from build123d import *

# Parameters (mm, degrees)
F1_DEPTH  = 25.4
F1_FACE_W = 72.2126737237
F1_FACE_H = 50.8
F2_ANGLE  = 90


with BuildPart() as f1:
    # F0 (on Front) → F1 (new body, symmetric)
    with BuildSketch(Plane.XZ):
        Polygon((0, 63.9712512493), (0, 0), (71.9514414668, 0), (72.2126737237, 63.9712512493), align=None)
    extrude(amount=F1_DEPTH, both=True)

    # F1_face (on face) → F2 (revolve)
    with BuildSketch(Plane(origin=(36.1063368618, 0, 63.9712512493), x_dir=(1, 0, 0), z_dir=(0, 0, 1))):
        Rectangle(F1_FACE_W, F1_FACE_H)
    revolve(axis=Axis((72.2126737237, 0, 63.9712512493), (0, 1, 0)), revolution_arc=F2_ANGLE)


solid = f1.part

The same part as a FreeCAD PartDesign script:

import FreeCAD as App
import Part
import Sketcher
Q = App.Units.Quantity

doc = App.newDocument("Part")
params = doc.addObject("Spreadsheet::Sheet", "Params")
for row, (alias, value) in enumerate([
    ("pad1_length", "2 in"),
    ("sketch2_height", "2 in"),
    ("revolution_angle", "90 deg"),
], start=1):
    params.set(f"A{row}", alias)
    params.set(f"B{row}", "=" + value)
    params.setAlias(f"B{row}", alias)

body = doc.addObject("PartDesign::Body", "Body")

# Sketch on XZ plane
sketch1 = body.newObject("Sketcher::SketchObject", "Sketch")
sketch1.AttachmentSupport = (doc.getObject("XZ_Plane"), [""])
sketch1.MapMode = "FlatFace"
sketch1.addGeometry([
    Part.LineSegment(App.Vector(0, 64, 0), App.Vector(0, 0, 0)),
    Part.LineSegment(App.Vector(0, 0, 0), App.Vector(72, 0, 0)),
    Part.LineSegment(App.Vector(72, 0, 0), App.Vector(72, 64, 0)),
    Part.LineSegment(App.Vector(72, 64, 0), App.Vector(0, 64, 0)),
], False)
sketch1.addConstraint([
    Sketcher.Constraint("Coincident", 0, 2, 1, 1),
    Sketcher.Constraint("Coincident", 1, 2, 2, 1),
    Sketcher.Constraint("Coincident", 2, 2, 3, 1),
    Sketcher.Constraint("Coincident", 3, 2, 0, 1),
    Sketcher.Constraint("Vertical", 0),
    Sketcher.Constraint("Horizontal", 1),
    Sketcher.Constraint("Horizontal", 3),
    Sketcher.Constraint("Coincident", 0, 2, -1, 1),
    Sketcher.Constraint("DistanceX", 1, 1, 1, 2, Q("71.951441 mm")),
    Sketcher.Constraint("DistanceY", 0, 2, 0, 1, Q("63.971251 mm")),
    Sketcher.Constraint("DistanceX", 3, 2, 3, 1, Q("72.212674 mm")),
])
pad1 = body.newObject("PartDesign::Pad", "Pad")
pad1.Profile = sketch1
pad1.setExpression("Length", "Params.pad1_length")
pad1.Midplane = True

# Sketch on XY plane
sketch2 = body.newObject("Sketcher::SketchObject", "Sketch001")
sketch2.AttachmentSupport = (doc.getObject("XY_Plane"), [""])
sketch2.MapMode = "FlatFace"
sketch2.AttachmentOffset = App.Placement(App.Vector(0, 0, 63.971251), App.Rotation())
sketch2.addGeometry([
    Part.LineSegment(App.Vector(0, 25, 0), App.Vector(0, -25, 0)),
    Part.LineSegment(App.Vector(0, -25, 0), App.Vector(72, -25, 0)),
    Part.LineSegment(App.Vector(72, -25, 0), App.Vector(72, 25, 0)),
    Part.LineSegment(App.Vector(72, 25, 0), App.Vector(0, 25, 0)),
], False)
sketch2.addGeometry(Part.LineSegment(App.Vector(72, -25, 0), App.Vector(72, 25, 0)), True)  # axis
sketch2.addConstraint([
    Sketcher.Constraint("Coincident", 0, 2, 1, 1),
    Sketcher.Constraint("Coincident", 1, 2, 2, 1),
    Sketcher.Constraint("Coincident", 2, 2, 3, 1),
    Sketcher.Constraint("Coincident", 3, 2, 0, 1),
    Sketcher.Constraint("Vertical", 0),
    Sketcher.Constraint("Horizontal", 1),
    Sketcher.Constraint("Vertical", 2),
    Sketcher.Constraint("Horizontal", 3),
    Sketcher.Constraint("Vertical", 4),
    Sketcher.Constraint("Coincident", 4, 1, 1, 2),
    Sketcher.Constraint("Symmetric", 0, 2, 3, 2, -1, 1),
    Sketcher.Constraint("Horizontal", 3, 2, 4, 2),
    Sketcher.Constraint("DistanceY", 0, 2, 0, 1, Q("2 in")),
    Sketcher.Constraint("DistanceX", 1, 1, 1, 2, Q("72.212674 mm")),
])
sketch2.setExpression("Constraints[12]", "Params.sketch2_height")
revolution = body.newObject("PartDesign::Revolution", "Revolution")
revolution.Profile = sketch2
revolution.ReferenceAxis = (sketch2, ["Axis0"])
revolution.setExpression("Angle", "Params.revolution_angle")

doc.recompute()
